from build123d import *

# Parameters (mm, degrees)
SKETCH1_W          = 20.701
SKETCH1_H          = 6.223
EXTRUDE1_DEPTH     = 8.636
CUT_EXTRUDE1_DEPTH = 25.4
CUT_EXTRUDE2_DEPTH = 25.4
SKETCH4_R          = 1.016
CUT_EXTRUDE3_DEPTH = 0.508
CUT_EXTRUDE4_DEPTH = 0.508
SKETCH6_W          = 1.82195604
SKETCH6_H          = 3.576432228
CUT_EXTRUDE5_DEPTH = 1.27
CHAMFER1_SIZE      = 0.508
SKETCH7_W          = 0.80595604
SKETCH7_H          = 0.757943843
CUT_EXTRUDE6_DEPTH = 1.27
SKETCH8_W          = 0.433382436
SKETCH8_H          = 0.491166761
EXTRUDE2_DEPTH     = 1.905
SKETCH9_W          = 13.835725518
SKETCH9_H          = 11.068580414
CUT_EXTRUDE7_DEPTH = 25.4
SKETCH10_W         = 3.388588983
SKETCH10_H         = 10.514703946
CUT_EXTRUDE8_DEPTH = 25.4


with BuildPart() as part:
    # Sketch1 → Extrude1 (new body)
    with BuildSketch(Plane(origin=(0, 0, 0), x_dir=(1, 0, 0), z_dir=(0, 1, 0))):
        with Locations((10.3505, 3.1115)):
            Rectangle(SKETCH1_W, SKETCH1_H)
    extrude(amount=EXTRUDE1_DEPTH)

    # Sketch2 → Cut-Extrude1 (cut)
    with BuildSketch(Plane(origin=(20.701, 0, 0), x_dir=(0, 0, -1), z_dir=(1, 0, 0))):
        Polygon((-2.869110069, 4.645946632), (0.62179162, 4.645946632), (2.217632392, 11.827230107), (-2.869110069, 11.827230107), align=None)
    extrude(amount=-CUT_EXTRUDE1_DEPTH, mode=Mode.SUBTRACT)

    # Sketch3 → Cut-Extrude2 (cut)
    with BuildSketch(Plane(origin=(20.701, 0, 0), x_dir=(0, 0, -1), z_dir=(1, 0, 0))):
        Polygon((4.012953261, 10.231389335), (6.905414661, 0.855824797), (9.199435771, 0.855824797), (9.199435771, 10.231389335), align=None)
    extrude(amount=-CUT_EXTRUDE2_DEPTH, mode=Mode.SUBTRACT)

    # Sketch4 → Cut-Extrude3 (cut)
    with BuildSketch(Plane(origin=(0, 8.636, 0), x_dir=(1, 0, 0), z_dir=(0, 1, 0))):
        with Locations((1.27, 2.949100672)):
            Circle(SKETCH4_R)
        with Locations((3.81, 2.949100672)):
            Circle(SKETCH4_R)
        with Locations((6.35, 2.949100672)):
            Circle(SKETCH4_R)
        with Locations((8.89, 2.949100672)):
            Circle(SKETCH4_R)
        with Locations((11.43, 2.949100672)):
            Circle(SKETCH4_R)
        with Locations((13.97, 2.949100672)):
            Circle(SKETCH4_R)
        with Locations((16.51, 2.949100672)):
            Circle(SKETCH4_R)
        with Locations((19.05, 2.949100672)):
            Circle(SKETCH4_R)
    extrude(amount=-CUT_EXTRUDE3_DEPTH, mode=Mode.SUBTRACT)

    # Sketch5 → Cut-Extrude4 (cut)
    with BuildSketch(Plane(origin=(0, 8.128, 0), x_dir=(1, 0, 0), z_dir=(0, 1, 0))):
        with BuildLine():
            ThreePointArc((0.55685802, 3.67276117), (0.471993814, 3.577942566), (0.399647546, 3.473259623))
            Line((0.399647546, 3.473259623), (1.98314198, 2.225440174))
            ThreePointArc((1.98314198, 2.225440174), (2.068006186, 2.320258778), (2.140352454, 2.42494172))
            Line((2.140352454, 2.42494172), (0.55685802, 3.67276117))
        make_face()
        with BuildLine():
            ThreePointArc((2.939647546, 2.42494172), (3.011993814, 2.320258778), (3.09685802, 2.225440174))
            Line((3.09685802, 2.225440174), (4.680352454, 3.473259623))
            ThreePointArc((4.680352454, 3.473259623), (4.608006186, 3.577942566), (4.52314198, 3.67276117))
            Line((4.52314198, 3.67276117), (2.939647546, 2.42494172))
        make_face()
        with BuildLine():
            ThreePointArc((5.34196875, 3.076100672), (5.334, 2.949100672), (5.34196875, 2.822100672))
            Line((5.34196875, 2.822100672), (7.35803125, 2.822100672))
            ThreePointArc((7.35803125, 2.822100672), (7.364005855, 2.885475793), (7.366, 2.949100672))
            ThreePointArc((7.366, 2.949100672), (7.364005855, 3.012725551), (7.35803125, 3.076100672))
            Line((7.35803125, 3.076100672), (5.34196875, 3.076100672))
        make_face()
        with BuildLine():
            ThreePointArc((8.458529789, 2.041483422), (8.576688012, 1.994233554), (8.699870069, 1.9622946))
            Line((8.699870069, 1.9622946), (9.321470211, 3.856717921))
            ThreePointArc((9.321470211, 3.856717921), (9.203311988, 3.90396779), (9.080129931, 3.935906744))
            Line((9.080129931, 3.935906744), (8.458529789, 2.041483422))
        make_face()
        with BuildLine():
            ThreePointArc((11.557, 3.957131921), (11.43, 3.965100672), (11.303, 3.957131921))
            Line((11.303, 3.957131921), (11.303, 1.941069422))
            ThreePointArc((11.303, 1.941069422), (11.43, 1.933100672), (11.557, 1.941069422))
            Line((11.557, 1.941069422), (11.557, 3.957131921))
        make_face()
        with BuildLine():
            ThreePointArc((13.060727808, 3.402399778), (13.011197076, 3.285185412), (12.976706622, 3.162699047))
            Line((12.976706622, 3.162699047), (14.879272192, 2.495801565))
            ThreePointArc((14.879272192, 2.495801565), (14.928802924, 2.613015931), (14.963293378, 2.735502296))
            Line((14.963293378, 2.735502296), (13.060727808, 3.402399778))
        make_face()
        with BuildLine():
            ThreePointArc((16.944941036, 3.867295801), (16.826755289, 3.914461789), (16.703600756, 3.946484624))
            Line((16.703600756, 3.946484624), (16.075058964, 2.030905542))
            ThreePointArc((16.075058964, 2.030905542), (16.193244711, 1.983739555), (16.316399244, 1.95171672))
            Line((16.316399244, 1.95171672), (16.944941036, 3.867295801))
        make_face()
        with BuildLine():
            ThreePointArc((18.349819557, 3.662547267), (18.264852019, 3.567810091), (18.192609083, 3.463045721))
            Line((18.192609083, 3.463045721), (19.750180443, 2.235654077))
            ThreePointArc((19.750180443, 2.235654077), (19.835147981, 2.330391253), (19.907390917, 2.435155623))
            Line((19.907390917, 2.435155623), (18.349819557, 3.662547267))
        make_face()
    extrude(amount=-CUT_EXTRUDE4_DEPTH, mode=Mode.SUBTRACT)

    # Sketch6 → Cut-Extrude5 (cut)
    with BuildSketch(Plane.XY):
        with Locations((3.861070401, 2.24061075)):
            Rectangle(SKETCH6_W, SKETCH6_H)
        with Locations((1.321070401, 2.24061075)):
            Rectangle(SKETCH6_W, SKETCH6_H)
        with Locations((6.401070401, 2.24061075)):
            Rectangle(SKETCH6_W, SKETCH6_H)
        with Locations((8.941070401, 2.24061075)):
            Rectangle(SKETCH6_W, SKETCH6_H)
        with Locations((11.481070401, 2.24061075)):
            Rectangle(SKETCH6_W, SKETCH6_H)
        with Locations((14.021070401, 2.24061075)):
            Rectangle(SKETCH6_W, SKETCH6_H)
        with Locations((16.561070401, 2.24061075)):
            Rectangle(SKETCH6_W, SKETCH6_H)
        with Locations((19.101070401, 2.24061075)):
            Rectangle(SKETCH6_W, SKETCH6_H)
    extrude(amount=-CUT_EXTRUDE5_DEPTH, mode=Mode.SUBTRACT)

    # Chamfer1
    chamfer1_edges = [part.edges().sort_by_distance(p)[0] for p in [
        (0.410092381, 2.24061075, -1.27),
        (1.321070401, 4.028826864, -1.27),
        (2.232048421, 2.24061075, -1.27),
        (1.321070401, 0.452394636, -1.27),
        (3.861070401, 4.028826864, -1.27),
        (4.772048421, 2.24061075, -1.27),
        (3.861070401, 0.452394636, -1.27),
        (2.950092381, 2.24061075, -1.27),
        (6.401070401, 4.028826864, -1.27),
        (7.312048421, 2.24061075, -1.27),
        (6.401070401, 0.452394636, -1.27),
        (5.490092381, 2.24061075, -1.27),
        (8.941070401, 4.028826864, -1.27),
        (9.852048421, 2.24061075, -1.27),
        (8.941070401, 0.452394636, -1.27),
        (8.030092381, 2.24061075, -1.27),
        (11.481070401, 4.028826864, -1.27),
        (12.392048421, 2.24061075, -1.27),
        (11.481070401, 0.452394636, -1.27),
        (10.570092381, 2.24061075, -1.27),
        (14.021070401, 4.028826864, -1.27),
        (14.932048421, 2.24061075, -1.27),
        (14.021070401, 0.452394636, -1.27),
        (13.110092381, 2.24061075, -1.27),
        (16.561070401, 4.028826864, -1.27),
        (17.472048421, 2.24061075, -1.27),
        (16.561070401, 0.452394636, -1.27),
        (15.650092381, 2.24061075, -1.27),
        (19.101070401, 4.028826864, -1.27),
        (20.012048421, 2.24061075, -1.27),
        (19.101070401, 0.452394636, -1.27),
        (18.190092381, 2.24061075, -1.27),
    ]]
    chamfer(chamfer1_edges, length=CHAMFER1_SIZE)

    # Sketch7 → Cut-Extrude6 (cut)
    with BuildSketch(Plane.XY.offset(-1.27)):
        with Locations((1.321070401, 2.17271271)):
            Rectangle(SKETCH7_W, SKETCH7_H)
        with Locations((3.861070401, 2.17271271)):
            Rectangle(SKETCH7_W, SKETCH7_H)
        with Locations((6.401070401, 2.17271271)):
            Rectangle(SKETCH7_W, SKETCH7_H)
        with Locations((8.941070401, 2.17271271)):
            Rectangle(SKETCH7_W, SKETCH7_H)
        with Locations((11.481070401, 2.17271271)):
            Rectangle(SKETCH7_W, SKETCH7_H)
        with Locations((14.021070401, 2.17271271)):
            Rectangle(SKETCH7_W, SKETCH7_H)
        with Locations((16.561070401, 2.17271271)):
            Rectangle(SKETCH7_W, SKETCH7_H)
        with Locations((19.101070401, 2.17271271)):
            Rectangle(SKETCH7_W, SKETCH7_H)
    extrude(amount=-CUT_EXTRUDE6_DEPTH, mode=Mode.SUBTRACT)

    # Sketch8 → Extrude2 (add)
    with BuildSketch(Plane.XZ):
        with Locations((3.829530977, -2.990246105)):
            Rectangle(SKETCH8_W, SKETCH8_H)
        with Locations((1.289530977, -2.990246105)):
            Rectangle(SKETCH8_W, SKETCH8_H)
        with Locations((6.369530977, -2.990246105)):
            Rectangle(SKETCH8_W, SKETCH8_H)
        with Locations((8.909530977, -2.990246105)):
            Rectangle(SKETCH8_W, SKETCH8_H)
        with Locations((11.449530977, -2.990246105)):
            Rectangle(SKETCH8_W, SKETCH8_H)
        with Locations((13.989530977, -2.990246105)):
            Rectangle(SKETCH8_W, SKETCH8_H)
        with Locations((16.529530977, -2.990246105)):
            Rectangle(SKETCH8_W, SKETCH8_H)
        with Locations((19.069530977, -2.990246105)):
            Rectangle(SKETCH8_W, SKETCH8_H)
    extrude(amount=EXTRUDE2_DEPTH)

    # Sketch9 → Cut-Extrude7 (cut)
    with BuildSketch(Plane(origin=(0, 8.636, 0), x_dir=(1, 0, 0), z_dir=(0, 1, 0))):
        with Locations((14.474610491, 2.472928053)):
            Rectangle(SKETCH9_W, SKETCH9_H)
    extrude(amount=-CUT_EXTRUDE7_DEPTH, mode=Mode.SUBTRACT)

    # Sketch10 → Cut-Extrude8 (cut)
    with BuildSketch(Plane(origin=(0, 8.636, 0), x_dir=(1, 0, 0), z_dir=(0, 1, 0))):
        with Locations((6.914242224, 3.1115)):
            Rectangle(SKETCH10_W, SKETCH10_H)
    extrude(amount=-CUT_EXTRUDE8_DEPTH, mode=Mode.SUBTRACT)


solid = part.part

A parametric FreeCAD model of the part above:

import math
import FreeCAD as App
import Part
import Sketcher
Q = App.Units.Quantity


def edges_at(feature, points):
    """Names of the edges that pass closest to the given points."""
    edges = feature.Shape.Edges
    near = lambda p: min(range(len(edges)), key=lambda i: edges[i].distToShape(Part.Vertex(*p))[0])
    return sorted({f"Edge{near(p) + 1}" for p in points})


def add_polygon(sketch, points):
    """Adds a closed chain of lines whose ends are joined by coincident constraints."""
    first, n = sketch.GeometryCount, len(points)
    for a, b in zip(points, points[1:] + points[:1]):
        sketch.addGeometry(Part.LineSegment(App.Vector(*a, 0), App.Vector(*b, 0)), False)
    for i in range(n):
        sketch.addConstraint(Sketcher.Constraint("Coincident", first + i, 2, first + (i + 1) % n, 1))

doc = App.newDocument("Part")
body = doc.addObject("PartDesign::Body", "Body")

sketch1 = doc.addObject("Sketcher::SketchObject", "Sketch")
body.addObject(sketch1)
sketch1.AttachmentSupport = (doc.XZ_Plane, [""])
sketch1.MapMode = "FlatFace"
add_polygon(sketch1, [(0, -6), (0, 0), (21, 0), (21, -6)])
sketch1.addConstraint([
    Sketcher.Constraint("Vertical", 0),
    Sketcher.Constraint("Horizontal", 1),
    Sketcher.Constraint("Vertical", 2),
    Sketcher.Constraint("Horizontal", 3),
    Sketcher.Constraint("Coincident", 0, 2, -1, 1),
    Sketcher.Constraint("DistanceX", 1, 1, 1, 2, Q("0.815 in")),
    Sketcher.Constraint("DistanceY", 0, 1, 0, 2, Q("0.245 in")),
])
pad1 = doc.addObject("PartDesign::Pad", "Pad")
body.addObject(pad1)
pad1.Profile = sketch1
pad1.Length = Q("0.34 in")
pad1.Reversed = True

sketch2 = doc.addObject("Sketcher::SketchObject", "Sketch001")
body.addObject(sketch2)
sketch2.AttachmentSupport = (doc.YZ_Plane, [""])
sketch2.MapMode = "FlatFace"
sketch2.AttachmentOffset = App.Placement(App.Vector(0, 0, 0.815 * 25.4), App.Rotation())
add_polygon(sketch2, [(4.6, 2.9), (4.6, -0.6), (11.8, -2.2), (11.8, 2.9)])
sketch2.addConstraint([
    Sketcher.Constraint("Vertical", 0),
    Sketcher.Constraint("Vertical", 2),
    Sketcher.Constraint("Horizontal", 3),
    Sketcher.Constraint("DistanceY", 0, 2, 0, 1, 3.490902),
    Sketcher.Constraint("DistanceX", 3, 2, 3, 1, 7.181283),
    Sketcher.Constraint("DistanceY", 2, 1, 2, 2, 5.086742),
    Sketcher.Constraint("DistanceY", 0, 2, -1, 1, 0.621792),
    Sketcher.Constraint("DistanceX", -1, 1, 1, 2, 11.82723),
])
pocket1 = doc.addObject("PartDesign::Pocket", "Pocket")
body.addObject(pocket1)
pocket1.Profile = sketch2
pocket1.Length = Q("1 in")

sketch3 = doc.addObject("Sketcher::SketchObject", "Sketch002")
body.addObject(sketch3)
sketch3.AttachmentSupport = (doc.YZ_Plane, [""])
sketch3.MapMode = "FlatFace"
sketch3.AttachmentOffset = App.Placement(App.Vector(0, 0, 0.815 * 25.4), App.Rotation())
add_polygon(sketch3, [(10.2, -4), (0.9, -6.9), (0.9, -9.2), (10.2, -9.2)])
sketch3.addConstraint([
    Sketcher.Constraint("Vertical", 1),
    Sketcher.Constraint("Horizontal", 2),
    Sketcher.Constraint("Vertical", 3),
    Sketcher.Constraint("DistanceY", 1, 2, 1, 1, 2.294021),
    Sketcher.Constraint("DistanceX", 2, 1, 2, 2, 9.375565),
    Sketcher.Constraint("DistanceY", 3, 1, 3, 2, 5.186483),
    Sketcher.Constraint("DistanceX", -1, 1, 2, 2, 10.231389),
    Sketcher.Constraint("DistanceY", 0, 2, -1, 1, 6.905415),
])
pocket2 = doc.addObject("PartDesign::Pocket", "Pocket001")
body.addObject(pocket2)
pocket2.Profile = sketch3
pocket2.Length = Q("1 in")

sketch4 = doc.addObject("Sketcher::SketchObject", "Sketch003")
body.addObject(sketch4)
sketch4.AttachmentSupport = (doc.XZ_Plane, [""])
sketch4.MapMode = "FlatFace"
sketch4.AttachmentOffset = App.Placement(App.Vector(0, 0, -0.34 * 25.4), App.Rotation())
sketch4.addGeometry([
    Part.Circle(App.Vector(1.3, -2.9, 0), App.Vector(0, 0, 1), 1),
    Part.Circle(App.Vector(3.8, -2.9, 0), App.Vector(0, 0, 1), 1),
    Part.Circle(App.Vector(6.3, -2.9, 0), App.Vector(0, 0, 1), 1),
    Part.Circle(App.Vector(8.9, -2.9, 0), App.Vector(0, 0, 1), 1),
    Part.Circle(App.Vector(11.4, -2.9, 0), App.Vector(0, 0, 1), 1),
    Part.Circle(App.Vector(14, -2.9, 0), App.Vector(0, 0, 1), 1),
    Part.Circle(App.Vector(16.5, -2.9, 0), App.Vector(0, 0, 1), 1),
    Part.Circle(App.Vector(19.1, -2.9, 0), App.Vector(0, 0, 1), 1),
], False)
sketch4.addConstraint([
    Sketcher.Constraint("Equal", 0, 1),
    Sketcher.Constraint("Equal", 1, 2),
    Sketcher.Constraint("Equal", 2, 3),
    Sketcher.Constraint("Equal", 3, 4),
    Sketcher.Constraint("Equal", 4, 5),
    Sketcher.Constraint("Equal", 5, 6),
    Sketcher.Constraint("Equal", 6, 7),
    Sketcher.Constraint("Horizontal", 0, 3, 1, 3),
    Sketcher.Constraint("Horizontal", 1, 3, 2, 3),
    Sketcher.Constraint("Horizontal", 2, 3, 3, 3),
    Sketcher.Constraint("Horizontal", 3, 3, 4, 3),
    Sketcher.Constraint("Horizontal", 4, 3, 5, 3),
    Sketcher.Constraint("Horizontal", 5, 3, 6, 3),
    Sketcher.Constraint("Horizontal", 6, 3, 7, 3),
    Sketcher.Constraint("Diameter", 0, Q("0.08 in")),
    Sketcher.Constraint("DistanceX", 0, 3, 1, 3, Q("0.1 in")),
    Sketcher.Constraint("DistanceX", 1, 3, 2, 3, Q("0.1 in")),
    Sketcher.Constraint("DistanceX", 2, 3, 3, 3, Q("0.1 in")),
    Sketcher.Constraint("DistanceX", 3, 3, 4, 3, Q("0.1 in")),
    Sketcher.Constraint("DistanceX", 4, 3, 5, 3, Q("0.1 in")),
    Sketcher.Constraint("DistanceX", 5, 3, 6, 3, Q("0.1 in")),
    Sketcher.Constraint("DistanceX", 6, 3, 7, 3, Q("0.1 in")),
    Sketcher.Constraint("DistanceX", -1, 1, 0, 3, Q("0.05 in")),
    Sketcher.Constraint("DistanceY", 0, 3, -1, 1, 2.949101),
])
pocket3 = doc.addObject("PartDesign::Pocket", "Pocket002")
body.addObject(pocket3)
pocket3.Profile = sketch4
pocket3.Length = Q("0.02 in")
pocket3.Reversed = True

sketch5 = doc.addObject("Sketcher::SketchObject", "Sketch004")
body.addObject(sketch5)
sketch5.AttachmentSupport = (doc.XZ_Plane, [""])
sketch5.MapMode = "FlatFace"
sketch5.AttachmentOffset = App.Placement(App.Vector(0, 0, -0.32 * 25.4), App.Rotation())
sketch5.addGeometry([
    Part.ArcOfCircle(Part.Circle(App.Vector(1.27, -2.95, 0), App.Vector(0, 0, 1), 1.02), math.radians(-148.94), math.radians(-134.58)),
    Part.LineSegment(App.Vector(0.4, -3.47, 0), App.Vector(1.98, -2.23, 0)),
    Part.ArcOfCircle(Part.Circle(App.Vector(1.27, -2.95, 0), App.Vector(0, 0, 1), 1.02), math.radians(31.06), math.radians(45.42)),
    Part.LineSegment(App.Vector(2.14, -2.42, 0), App.Vector(0.56, -3.67, 0)),
    Part.ArcOfCircle(Part.Circle(App.Vector(3.81, -2.95, 0), App.Vector(0, 0, 1), 1.02), math.radians(134.58), math.radians(148.94)),
    Part.LineSegment(App.Vector(3.1, -2.23, 0), App.Vector(4.68, -3.47, 0)),
    Part.ArcOfCircle(Part.Circle(App.Vector(3.81, -2.95, 0), App.Vector(0, 0, 1), 1.02), math.radians(-45.42), math.radians(-31.06)),
    Part.LineSegment(App.Vector(4.52, -3.67, 0), App.Vector(2.94, -2.42, 0)),
    Part.ArcOfCircle(Part.Circle(App.Vector(6.35, -2.95, 0), App.Vector(0, 0, 1), 1.02), math.radians(172.82), math.radians(187.18)),
    Part.LineSegment(App.Vector(5.34, -2.82, 0), App.Vector(7.36, -2.82, 0)),
    Part.ArcOfCircle(Part.Circle(App.Vector(6.35, -2.95, 0), App.Vector(0, 0, 1), 1.02), math.radians(0), math.radians(7.18)),
    Part.ArcOfCircle(Part.Circle(App.Vector(6.35, -2.95, 0), App.Vector(0, 0, 1), 1.02), math.radians(-7.18), math.radians(0)),
    Part.LineSegment(App.Vector(7.36, -3.08, 0), App.Vector(5.34, -3.08, 0)),
    Part.ArcOfCircle(Part.Circle(App.Vector(8.89, -2.95, 0), App.Vector(0, 0, 1), 1), math.radians(100.91), math.radians(115.43)),
    Part.LineSegment(App.Vector(8.7, -1.96, 0), App.Vector(9.32, -3.86, 0)),
    Part.ArcOfCircle(Part.Circle(App.Vector(8.89, -2.95, 0), App.Vector(0, 0, 1), 1), math.radians(-79.09), math.radians(-64.57)),
    Part.LineSegment(App.Vector(9.08, -3.94, 0), App.Vector(8.46, -2.04, 0)),
    Part.ArcOfCircle(Part.Circle(App.Vector(11.43, -2.95, 0), App.Vector(0, 0, 1), 1.02), math.radians(-97.18), math.radians(-82.82)),
    Part.LineSegment(App.Vector(11.3, -3.96, 0), App.Vector(11.3, -1.94, 0)),
    Part.ArcOfCircle(Part.Circle(App.Vector(11.43, -2.95, 0), App.Vector(0, 0, 1), 1.02), math.radians(82.82), math.radians(97.18)),
    Part.LineSegment(App.Vector(11.56, -1.94, 0), App.Vector(11.56, -3.96, 0)),
    Part.ArcOfCircle(Part.Circle(App.Vector(13.97, -2.95, 0), App.Vector(0, 0, 1), 1.02), math.radians(-167.86), math.radians(-153.5)),
    Part.LineSegment(App.Vector(12.98, -3.16, 0), App.Vector(14.88, -2.5, 0)),
    Part.ArcOfCircle(Part.Circle(App.Vector(13.97, -2.95, 0), App.Vector(0, 0, 1), 1.02), math.radians(12.14), math.radians(26.5)),
    Part.LineSegment(App.Vector(14.96, -2.74, 0), App.Vector(13.06, -3.4, 0)),
    Part.ArcOfCircle(Part.Circle(App.Vector(16.51, -2.95, 0), App.Vector(0, 0, 1), 1.02), math.radians(-79.02), math.radians(-64.65)),
    Part.LineSegment(App.Vector(16.7, -3.95, 0), App.Vector(16.08, -2.03, 0)),
    Part.ArcOfCircle(Part.Circle(App.Vector(16.51, -2.95, 0), App.Vector(0, 0, 1), 1.02), math.radians(100.98), math.radians(115.35)),
    Part.LineSegment(App.Vector(16.32, -1.95, 0), App.Vector(16.94, -3.87, 0)),
    Part.ArcOfCircle(Part.Circle(App.Vector(19.05, -2.95, 0), App.Vector(0, 0, 1), 1), math.radians(-149.06), math.radians(-134.46)),
    Part.LineSegment(App.Vector(18.19, -3.46, 0), App.Vector(19.75, -2.24, 0)),
    Part.ArcOfCircle(Part.Circle(App.Vector(19.05, -2.95, 0), App.Vector(0, 0, 1), 1), math.radians(30.94), math.radians(45.54)),
    Part.LineSegment(App.Vector(19.91, -2.44, 0), App.Vector(18.35, -3.66, 0)),
], False)
sketch5.addConstraint([
    Sketcher.Constraint("Coincident", 0, 1, 1, 1),
    Sketcher.Constraint("Coincident", 1, 2, 2, 2),
    Sketcher.Constraint("Coincident", 2, 1, 3, 1),
    Sketcher.Constraint("Coincident", 3, 2, 0, 2),
    Sketcher.Constraint("Coincident", 4, 1, 5, 1),
    Sketcher.Constraint("Coincident", 5, 2, 6, 2),
    Sketcher.Constraint("Coincident", 6, 1, 7, 1),
    Sketcher.Constraint("Coincident", 7, 2, 4, 2),
    Sketcher.Constraint("Coincident", 8, 1, 9, 1),
    Sketcher.Constraint("Coincident", 9, 2, 10, 2),
    Sketcher.Constraint("Tangent", 10, 1, 11, 2),
    Sketcher.Constraint("Coincident", 11, 1, 12, 1),
    Sketcher.Constraint("Coincident", 12, 2, 8, 2),
    Sketcher.Constraint("Coincident", 13, 1, 14, 1),
    Sketcher.Constraint("Coincident", 14, 2, 15, 2),
    Sketcher.Constraint("Coincident", 15, 1, 16, 1),
    Sketcher.Constraint("Coincident", 16, 2, 13, 2),
    Sketcher.Constraint("Coincident", 17, 1, 18, 1),
    Sketcher.Constraint("Coincident", 18, 2, 19, 2),
    Sketcher.Constraint("Coincident", 19, 1, 20, 1),
    Sketcher.Constraint("Coincident", 20, 2, 17, 2),
    Sketcher.Constraint("Coincident", 21, 1, 22, 1),
    Sketcher.Constraint("Coincident", 22, 2, 23, 2),
    Sketcher.Constraint("Coincident", 23, 1, 24, 1),
    Sketcher.Constraint("Coincident", 24, 2, 21, 2),
    Sketcher.Constraint("Coincident", 25, 1, 26, 1),
    Sketcher.Constraint("Coincident", 26, 2, 27, 2),
    Sketcher.Constraint("Coincident", 27, 1, 28, 1),
    Sketcher.Constraint("Coincident", 28, 2, 25, 2),
    Sketcher.Constraint("Coincident", 29, 1, 30, 1),
    Sketcher.Constraint("Coincident", 30, 2, 31, 2),
    Sketcher.Constraint("Coincident", 31, 1, 32, 1),
    Sketcher.Constraint("Coincident", 32, 2, 29, 2),
    Sketcher.Constraint("Horizontal", 9),
    Sketcher.Constraint("Horizontal", 12),
    Sketcher.Constraint("Vertical", 18),
    Sketcher.Constraint("Vertical", 20),
    Sketcher.Constraint("Coincident", 2, 3, 0, 3),
    Sketcher.Constraint("Coincident", 6, 3, 4, 3),
    Sketcher.Constraint("Coincident", 10, 3, 8, 3),
    Sketcher.Constraint("Coincident", 15, 3, 13, 3),
    Sketcher.Constraint("Coincident", 19, 3, 17, 3),
    Sketcher.Constraint("Coincident", 23, 3, 21, 3),
    Sketcher.Constraint("Coincident", 27, 3, 25, 3),
    Sketcher.Constraint("Coincident", 31, 3, 29, 3),
    Sketcher.Constraint("Equal", 0, 2),
    Sketcher.Constraint("Equal", 2, 4),
    Sketcher.Constraint("Equal", 4, 6),
    Sketcher.Constraint("Equal", 6, 8),
    Sketcher.Constraint("Equal", 8, 10),
    Sketcher.Constraint("Equal", 10, 11),
    Sketcher.Constraint("Equal", 13, 15),
    Sketcher.Constraint("Equal", 11, 17),
    Sketcher.Constraint("Equal", 17, 19),
    Sketcher.Constraint("Equal", 19, 21),
    Sketcher.Constraint("Equal", 21, 23),
    Sketcher.Constraint("Equal", 23, 25),
    Sketcher.Constraint("Equal", 25, 27),
    Sketcher.Constraint("Equal", 29, 31),
    Sketcher.Constraint("Parallel", 1, 3),
    Sketcher.Constraint("Parallel", 5, 7),
    Sketcher.Constraint("Parallel", 14, 16),
    Sketcher.Constraint("Parallel", 22, 24),
    Sketcher.Constraint("Parallel", 16, 26),
    Sketcher.Constraint("Parallel", 26, 28),
    Sketcher.Constraint("Parallel", 3, 30),
    Sketcher.Constraint("Parallel", 30, 32),
    Sketcher.Constraint("Horizontal", 2, 3, 4, 3),
    Sketcher.Constraint("Horizontal", 6, 3, 8, 3),
    Sketcher.Constraint("Horizontal", 11, 3, 13, 3),
    Sketcher.Constraint("Horizontal", 15, 3, 17, 3),
    Sketcher.Constraint("Horizontal", 19, 3, 21, 3),
    Sketcher.Constraint("Horizontal", 23, 3, 25, 3),
    Sketcher.Constraint("Horizontal", 27, 3, 29, 3),
    Sketcher.Constraint("Horizontal", 1, 2, 4, 1),
    Sketcher.Constraint("Horizontal", 0, 1, 5, 2),
    Sketcher.Constraint("Horizontal", 3, 2, 6, 1),
    Sketcher.Constraint("Horizontal", 31, 3, 10, 1),
    Sketcher.Constraint("Horizontal", 18, 2, 19, 1),
    Sketcher.Constraint("Vertical", 9, 2, 11, 1),
    Sketcher.Constraint("Equal", 12, 18),
    Sketcher.Constraint("Equal", 1, 3),
    Sketcher.Constraint("Equal", 14, 16),
    Sketcher.Constraint("Equal", 7, 22),
    Sketcher.Constraint("Equal", 22, 24),
    Sketcher.Constraint("Equal", 24, 26),
    Sketcher.Constraint("Equal", 26, 28),
    Sketcher.Constraint("Equal", 30, 32),
    Sketcher.Constraint("Radius", 0, Q("0.04 in")),
    Sketcher.Constraint("DistanceX", 2, 3, 4, 3, Q("0.1 in")),
    Sketcher.Constraint("DistanceX", 6, 3, 8, 3, Q("0.1 in")),
    Sketcher.Constraint("DistanceX", 8, 3, 13, 3, Q("0.1 in")),
    Sketcher.Constraint("DistanceX", 15, 3, 17, 3, Q("0.1 in")),
    Sketcher.Constraint("DistanceX", 17, 3, 21, 3, Q("0.1 in")),
    Sketcher.Constraint("DistanceX", 21, 3, 25, 3, Q("0.1 in")),
    Sketcher.Constraint("DistanceX", 27, 3, 29, 3, Q("0.1 in")),
    Sketcher.Constraint("DistanceX", -1, 1, 0, 3, Q("0.05 in")),
    Sketcher.Constraint("DistanceY", 11, 1, 9, 2, Q("0.01 in")),
    Sketcher.Constraint("Radius", 29, 0.999629),
    Sketcher.Constraint("Radius", 13, 1.004956),
    Sketcher.Constraint("DistanceY", 0, 3, -1, 1, 2.949101),
    Sketcher.Constraint("DistanceY", 21, 1, -1, 1, 3.162699),
    Sketcher.Constraint("DistanceY", 22, 2, -1, 1, 2.495802),
    Sketcher.Constraint("DistanceX", -1, 1, 25, 1, 16.703601),
    Sketcher.Constraint("DistanceY", 2, 1, 1, 2, 0.199502),
    Sketcher.Constraint("DistanceX", 13, 1, 14, 2, 0.6216),
    Sketcher.Constraint("DistanceY", 31, 1, 30, 2, 0.199502),
])
pocket4 = doc.addObject("PartDesign::Pocket", "Pocket003")
body.addObject(pocket4)
pocket4.Profile = sketch5
pocket4.Length = Q("0.02 in")
pocket4.Reversed = True

sketch6 = doc.addObject("Sketcher::SketchObject", "Sketch005")
body.addObject(sketch6)
sketch6.AttachmentSupport = (doc.XY_Plane, [""])
sketch6.MapMode = "FlatFace"
add_polygon(sketch6, [(3, 4), (3, 0.5), (4.8, 0.5), (4.8, 4)])
add_polygon(sketch6, [(0.4, 4), (0.4, 0.5), (2.2, 0.5), (2.2, 4)])
add_polygon(sketch6, [(5.5, 4), (5.5, 0.5), (7.3, 0.5), (7.3, 4)])
add_polygon(sketch6, [(8, 4), (8, 0.5), (9.9, 0.5), (9.9, 4)])
add_polygon(sketch6, [(10.6, 4), (10.6, 0.5), (12.4, 0.5), (12.4, 4)])
add_polygon(sketch6, [(13.1, 4), (13.1, 0.5), (14.9, 0.5), (14.9, 4)])
add_polygon(sketch6, [(15.7, 4), (15.7, 0.5), (17.5, 0.5), (17.5, 4)])
add_polygon(sketch6, [(18.2, 4), (18.2, 0.5), (20, 0.5), (20, 4)])
sketch6.addConstraint([
    Sketcher.Constraint("Vertical", 0),
    Sketcher.Constraint("Horizontal", 1),
    Sketcher.Constraint("Vertical", 2),
    Sketcher.Constraint("Horizontal", 3),
    Sketcher.Constraint("Vertical", 4),
    Sketcher.Constraint("Horizontal", 5),
    Sketcher.Constraint("Vertical", 6),
    Sketcher.Constraint("Horizontal", 7),
    Sketcher.Constraint("Vertical", 8),
    Sketcher.Constraint("Horizontal", 9),
    Sketcher.Constraint("Vertical", 10),
    Sketcher.Constraint("Horizontal", 11),
    Sketcher.Constraint("Vertical", 12),
    Sketcher.Constraint("Horizontal", 13),
    Sketcher.Constraint("Vertical", 14),
    Sketcher.Constraint("Horizontal", 15),
    Sketcher.Constraint("Vertical", 16),
    Sketcher.Constraint("Horizontal", 17),
    Sketcher.Constraint("Vertical", 18),
    Sketcher.Constraint("Horizontal", 19),
    Sketcher.Constraint("Vertical", 20),
    Sketcher.Constraint("Horizontal", 21),
    Sketcher.Constraint("Vertical", 22),
    Sketcher.Constraint("Horizontal", 23),
    Sketcher.Constraint("Vertical", 24),
    Sketcher.Constraint("Horizontal", 25),
    Sketcher.Constraint("Vertical", 26),
    Sketcher.Constraint("Horizontal", 27),
    Sketcher.Constraint("Vertical", 28),
    Sketcher.Constraint("Horizontal", 29),
    Sketcher.Constraint("Vertical", 30),
    Sketcher.Constraint("Horizontal", 31),
    Sketcher.Constraint("Horizontal", 1, 2, 4, 2),
    Sketcher.Constraint("Horizontal", 3, 2, 6, 2),
    Sketcher.Constraint("Horizontal", 5, 2, 8, 2),
    Sketcher.Constraint("Horizontal", 7, 2, 10, 2),
    Sketcher.Constraint("Horizontal", 9, 2, 12, 2),
    Sketcher.Constraint("Horizontal", 11, 2, 14, 2),
    Sketcher.Constraint("Horizontal", 13, 2, 16, 2),
    Sketcher.Constraint("Horizontal", 15, 2, 18, 2),
    Sketcher.Constraint("Horizontal", 17, 2, 20, 2),
    Sketcher.Constraint("Horizontal", 19, 2, 22, 2),
    Sketcher.Constraint("Horizontal", 21, 2, 24, 2),
    Sketcher.Constraint("Horizontal", 23, 2, 26, 2),
    Sketcher.Constraint("Horizontal", 25, 2, 28, 2),
    Sketcher.Constraint("Horizontal", 27, 2, 30, 2),
    Sketcher.Constraint("Equal", 3, 5),
    Sketcher.Constraint("Equal", 7, 9),
    Sketcher.Constraint("Equal", 11, 13),
    Sketcher.Constraint("Equal", 15, 17),
    Sketcher.Constraint("Equal", 19, 21),
    Sketcher.Constraint("Equal", 23, 25),
    Sketcher.Constraint("Equal", 27, 29),
    Sketcher.Constraint("DistanceX", 4, 2, 0, 2, Q("0.1 in")),
    Sketcher.Constraint("DistanceX", 0, 2, 8, 2, Q("0.1 in")),
    Sketcher.Constraint("DistanceX", 8, 2, 12, 2, Q("0.1 in")),
    Sketcher.Constraint("DistanceX", 12, 2, 16, 2, Q("0.1 in")),
    Sketcher.Constraint("DistanceX", 16, 2, 20, 2, Q("0.1 in")),
    Sketcher.Constraint("DistanceX", 20, 2, 24, 2, Q("0.1 in")),
    Sketcher.Constraint("DistanceX", 24, 2, 28, 2, Q("0.1 in")),
    Sketcher.Constraint("DistanceX", 1, 1, 1, 2, 1.821956),
    Sketcher.Constraint("DistanceY", 0, 2, 0, 1, 3.576432),
    Sketcher.Constraint("DistanceX", -1, 1, 1, 2, 4.772048),
    Sketcher.Constraint("DistanceY", -1, 1, 0, 2, 0.452395),
])
pocket5 = doc.addObject("PartDesign::Pocket", "Pocket004")
body.addObject(pocket5)
pocket5.Profile = sketch6
pocket5.Length = Q("0.05 in")
doc.recompute()

chamfer = doc.addObject("PartDesign::Chamfer", "Chamfer")
body.addObject(chamfer)
chamfer.Base = (pocket5, edges_at(pocket5, [
    (0.41, 2.241, -1.27),
    (1.321, 4.029, -1.27),
    (2.232, 2.241, -1.27),
    (1.321, 0.452, -1.27),
    (3.861, 4.029, -1.27),
    (4.772, 2.241, -1.27),
    (3.861, 0.452, -1.27),
    (2.95, 2.241, -1.27),
    (6.401, 4.029, -1.27),
    (7.312, 2.241, -1.27),
    (6.401, 0.452, -1.27),
    (5.49, 2.241, -1.27),
    (8.941, 4.029, -1.27),
    (9.852, 2.241, -1.27),
    (8.941, 0.452, -1.27),
    (8.03, 2.241, -1.27),
    (11.481, 4.029, -1.27),
    (12.392, 2.241, -1.27),
    (11.481, 0.452, -1.27),
    (10.57, 2.241, -1.27),
    (14.021, 4.029, -1.27),
    (14.932, 2.241, -1.27),
    (14.021, 0.452, -1.27),
    (13.11, 2.241, -1.27),
    (16.561, 4.029, -1.27),
    (17.472, 2.241, -1.27),
    (16.561, 0.452, -1.27),
    (15.65, 2.241, -1.27),
    (19.101, 4.029, -1.27),
    (20.012, 2.241, -1.27),
    (19.101, 0.452, -1.27),
    (18.19, 2.241, -1.27),
]))
chamfer.Size = Q("0.02 in")

sketch7 = doc.addObject("Sketcher::SketchObject", "Sketch006")
body.addObject(sketch7)
sketch7.AttachmentSupport = (doc.XY_Plane, [""])
sketch7.MapMode = "FlatFace"
sketch7.AttachmentOffset = App.Placement(App.Vector(0, 0, -0.05 * 25.4), App.Rotation())
add_polygon(sketch7, [(0.9, 2.6), (0.9, 1.8), (1.7, 1.8), (1.7, 2.6)])
add_polygon(sketch7, [(3.5, 2.6), (3.5, 1.8), (4.3, 1.8), (4.3, 2.6)])
add_polygon(sketch7, [(6, 2.6), (6, 1.8), (6.8, 1.8), (6.8, 2.6)])
add_polygon(sketch7, [(8.5, 2.6), (8.5, 1.8), (9.3, 1.8), (9.3, 2.6)])
add_polygon(sketch7, [(11.1, 2.6), (11.1, 1.8), (11.9, 1.8), (11.9, 2.6)])
add_polygon(sketch7, [(13.6, 2.6), (13.6, 1.8), (14.4, 1.8), (14.4, 2.6)])
add_polygon(sketch7, [(16.2, 2.6), (16.2, 1.8), (17, 1.8), (17, 2.6)])
add_polygon(sketch7, [(18.7, 2.6), (18.7, 1.8), (19.5, 1.8), (19.5, 2.6)])
sketch7.addConstraint([
    Sketcher.Constraint("Vertical", 0),
    Sketcher.Constraint("Horizontal", 1),
    Sketcher.Constraint("Vertical", 2),
    Sketcher.Constraint("Horizontal", 3),
    Sketcher.Constraint("Vertical", 4),
    Sketcher.Constraint("Horizontal", 5),
    Sketcher.Constraint("Vertical", 6),
    Sketcher.Constraint("Horizontal", 7),
    Sketcher.Constraint("Vertical", 8),
    Sketcher.Constraint("Horizontal", 9),
    Sketcher.Constraint("Vertical", 10),
    Sketcher.Constraint("Horizontal", 11),
    Sketcher.Constraint("Vertical", 12),
    Sketcher.Constraint("Horizontal", 13),
    Sketcher.Constraint("Vertical", 14),
    Sketcher.Constraint("Horizontal", 15),
    Sketcher.Constraint("Vertical", 16),
    Sketcher.Constraint("Horizontal", 17),
    Sketcher.Constraint("Vertical", 18),
    Sketcher.Constraint("Horizontal", 19),
    Sketcher.Constraint("Vertical", 20),
    Sketcher.Constraint("Horizontal", 21),
    Sketcher.Constraint("Vertical", 22),
    Sketcher.Constraint("Horizontal", 23),
    Sketcher.Constraint("Vertical", 24),
    Sketcher.Constraint("Horizontal", 25),
    Sketcher.Constraint("Vertical", 26),
    Sketcher.Constraint("Horizontal", 27),
    Sketcher.Constraint("Vertical", 28),
    Sketcher.Constraint("Horizontal", 29),
    Sketcher.Constraint("Vertical", 30),
    Sketcher.Constraint("Horizontal", 31),
    Sketcher.Constraint("Horizontal", 1, 2, 4, 2),
    Sketcher.Constraint("Horizontal", 3, 2, 6, 2),
    Sketcher.Constraint("Horizontal", 5, 2, 8, 2),
    Sketcher.Constraint("Horizontal", 7, 2, 10, 2),
    Sketcher.Constraint("Horizontal", 9, 2, 12, 2),
    Sketcher.Constraint("Horizontal", 11, 2, 14, 2),
    Sketcher.Constraint("Horizontal", 13, 2, 16, 2),
    Sketcher.Constraint("Horizontal", 15, 2, 18, 2),
    Sketcher.Constraint("Horizontal", 17, 2, 20, 2),
    Sketcher.Constraint("Horizontal", 19, 2, 22, 2),
    Sketcher.Constraint("Horizontal", 21, 2, 24, 2),
    Sketcher.Constraint("Horizontal", 23, 2, 26, 2),
    Sketcher.Constraint("Horizontal", 25, 2, 28, 2),
    Sketcher.Constraint("Horizontal", 27, 2, 30, 2),
    Sketcher.Constraint("Equal", 3, 5),
    Sketcher.Constraint("Equal", 7, 9),
    Sketcher.Constraint("Equal", 11, 13),
    Sketcher.Constraint("Equal", 15, 17),
    Sketcher.Constraint("Equal", 19, 21),
    Sketcher.Constraint("Equal", 23, 25),
    Sketcher.Constraint("Equal", 27, 29),
    Sketcher.Constraint("DistanceX", 0, 2, 4, 2, Q("0.1 in")),
    Sketcher.Constraint("DistanceX", 4, 2, 8, 2, Q("0.1 in")),
    Sketcher.Constraint("DistanceX", 8, 2, 12, 2, Q("0.1 in")),
    Sketcher.Constraint("DistanceX", 12, 2, 16, 2, Q("0.1 in")),
    Sketcher.Constraint("DistanceX", 16, 2, 20, 2, Q("0.1 in")),
    Sketcher.Constraint("DistanceX", 20, 2, 24, 2, Q("0.1 in")),
    Sketcher.Constraint("DistanceX", 24, 2, 28, 2, Q("0.1 in")),
    Sketcher.Constraint("DistanceX", 1, 1, 1, 2, 0.805956),
    Sketcher.Constraint("DistanceY", 0, 2, 0, 1, 0.757944),
    Sketcher.Constraint("DistanceY", -1, 1, 0, 2, 1.793741),
    Sketcher.Constraint("DistanceX", -1, 1, 1, 2, 1.724048),
])
pocket6 = doc.addObject("PartDesign::Pocket", "Pocket005")
body.addObject(pocket6)
pocket6.Profile = sketch7
pocket6.Length = Q("0.05 in")

sketch8 = doc.addObject("Sketcher::SketchObject", "Sketch007")
body.addObject(sketch8)
sketch8.AttachmentSupport = (doc.XZ_Plane, [""])
sketch8.MapMode = "FlatFace"
add_polygon(sketch8, [(3.61, -2.74), (3.61, -3.24), (4.05, -3.24), (4.05, -2.74)])
add_polygon(sketch8, [(1.07, -2.74), (1.07, -3.24), (1.51, -3.24), (1.51, -2.74)])
add_polygon(sketch8, [(6.15, -2.74), (6.15, -3.24), (6.59, -3.24), (6.59, -2.74)])
add_polygon(sketch8, [(8.69, -2.74), (8.69, -3.24), (9.13, -3.24), (9.13, -2.74)])
add_polygon(sketch8, [(11.23, -2.74), (11.23, -3.24), (11.67, -3.24), (11.67, -2.74)])
add_polygon(sketch8, [(13.77, -2.74), (13.77, -3.24), (14.21, -3.24), (14.21, -2.74)])
add_polygon(sketch8, [(16.31, -2.74), (16.31, -3.24), (16.75, -3.24), (16.75, -2.74)])
add_polygon(sketch8, [(18.85, -2.74), (18.85, -3.24), (19.29, -3.24), (19.29, -2.74)])
sketch8.addConstraint([
    Sketcher.Constraint("Vertical", 0),
    Sketcher.Constraint("Horizontal", 1),
    Sketcher.Constraint("Vertical", 2),
    Sketcher.Constraint("Horizontal", 3),
    Sketcher.Constraint("Vertical", 4),
    Sketcher.Constraint("Horizontal", 5),
    Sketcher.Constraint("Vertical", 6),
    Sketcher.Constraint("Horizontal", 7),
    Sketcher.Constraint("Vertical", 8),
    Sketcher.Constraint("Horizontal", 9),
    Sketcher.Constraint("Vertical", 10),
    Sketcher.Constraint("Horizontal", 11),
    Sketcher.Constraint("Vertical", 12),
    Sketcher.Constraint("Horizontal", 13),
    Sketcher.Constraint("Vertical", 14),
    Sketcher.Constraint("Horizontal", 15),
    Sketcher.Constraint("Vertical", 16),
    Sketcher.Constraint("Horizontal", 17),
    Sketcher.Constraint("Vertical", 18),
    Sketcher.Constraint("Horizontal", 19),
    Sketcher.Constraint("Vertical", 20),
    Sketcher.Constraint("Horizontal", 21),
    Sketcher.Constraint("Vertical", 22),
    Sketcher.Constraint("Horizontal", 23),
    Sketcher.Constraint("Vertical", 24),
    Sketcher.Constraint("Horizontal", 25),
    Sketcher.Constraint("Vertical", 26),
    Sketcher.Constraint("Horizontal", 27),
    Sketcher.Constraint("Vertical", 28),
    Sketcher.Constraint("Horizontal", 29),
    Sketcher.Constraint("Vertical", 30),
    Sketcher.Constraint("Horizontal", 31),
    Sketcher.Constraint("Horizontal", 1, 2, 4, 2),
    Sketcher.Constraint("Horizontal", 3, 2, 6, 2),
    Sketcher.Constraint("Horizontal", 5, 2, 8, 2),
    Sketcher.Constraint("Horizontal", 7, 2, 10, 2),
    Sketcher.Constraint("Horizontal", 9, 2, 12, 2),
    Sketcher.Constraint("Horizontal", 11, 2, 14, 2),
    Sketcher.Constraint("Horizontal", 13, 2, 16, 2),
    Sketcher.Constraint("Horizontal", 15, 2, 18, 2),
    Sketcher.Constraint("Horizontal", 17, 2, 20, 2),
    Sketcher.Constraint("Horizontal", 19, 2, 22, 2),
    Sketcher.Constraint("Horizontal", 21, 2, 24, 2),
    Sketcher.Constraint("Horizontal", 23, 2, 26, 2),
    Sketcher.Constraint("Horizontal", 25, 2, 28, 2),
    Sketcher.Constraint("Horizontal", 27, 2, 30, 2),
    Sketcher.Constraint("Equal", 3, 5),
    Sketcher.Constraint("Equal", 7, 9),
    Sketcher.Constraint("Equal", 11, 13),
    Sketcher.Constraint("Equal", 15, 17),
    Sketcher.Constraint("Equal", 19, 21),
    Sketcher.Constraint("Equal", 23, 25),
    Sketcher.Constraint("Equal", 27, 29),
    Sketcher.Constraint("DistanceX", 4, 2, 0, 2, Q("0.1 in")),
    Sketcher.Constraint("DistanceX", 0, 2, 8, 2, Q("0.1 in")),
    Sketcher.Constraint("DistanceX", 8, 2, 12, 2, Q("0.1 in")),
    Sketcher.Constraint("DistanceX", 12, 2, 16, 2, Q("0.1 in")),
    Sketcher.Constraint("DistanceX", 16, 2, 20, 2, Q("0.1 in")),
    Sketcher.Constraint("DistanceX", 20, 2, 24, 2, Q("0.1 in")),
    Sketcher.Constraint("DistanceX", 24, 2, 28, 2, Q("0.1 in")),
    Sketcher.Constraint("DistanceX", -1, 1, 1, 2, Q("0.1593001 in")),
    Sketcher.Constraint("DistanceX", 1, 1, 1, 2, 0.433382),
    Sketcher.Constraint("DistanceY", 0, 2, 0, 1, 0.491167),
    Sketcher.Constraint("DistanceY", 0, 2, -1, 1, 3.235829),
])
pad2 = doc.addObject("PartDesign::Pad", "Pad001")
body.addObject(pad2)
pad2.Profile = sketch8
pad2.Length = Q("0.075 in")

sketch9 = doc.addObject("Sketcher::SketchObject", "Sketch008")
body.addObject(sketch9)
sketch9.AttachmentSupport = (doc.XZ_Plane, [""])
sketch9.MapMode = "FlatFace"
sketch9.AttachmentOffset = App.Placement(App.Vector(0, 0, -0.34 * 25.4), App.Rotation())
add_polygon(sketch9, [(8, -8), (8, 3), (21, 3), (21, -8)])
sketch9.addConstraint([
    Sketcher.Constraint("Vertical", 0),
    Sketcher.Constraint("Horizontal", 1),
    Sketcher.Constraint("Vertical", 2),
    Sketcher.Constraint("Horizontal", 3),
    Sketcher.Constraint("DistanceY", 0, 1, 0, 2, 11.06858),
    Sketcher.Constraint("DistanceX", 1, 1, 1, 2, 13.835726),
    Sketcher.Constraint("DistanceY", 2, 2, -1, 1, 8.007218),
    Sketcher.Constraint("DistanceX", -1, 1, 0, 2, 7.556748),
])
pocket7 = doc.addObject("PartDesign::Pocket", "Pocket006")
body.addObject(pocket7)
pocket7.Profile = sketch9
pocket7.Length = Q("1 in")
pocket7.Reversed = True

sketch10 = doc.addObject("Sketcher::SketchObject", "Sketch009")
body.addObject(sketch10)
sketch10.AttachmentSupport = (doc.XZ_Plane, [""])
sketch10.MapMode = "FlatFace"
sketch10.AttachmentOffset = App.Placement(App.Vector(0, 0, -0.34 * 25.4), App.Rotation())
add_polygon(sketch10, [(5.2, -8.4), (5.2, 2.1), (8.6, 2.1), (8.6, -8.4)])
sketch10.addConstraint([
    Sketcher.Constraint("Vertical", 0),
    Sketcher.Constraint("Horizontal", 1),
    Sketcher.Constraint("Vertical", 2),
    Sketcher.Constraint("Horizontal", 3),
    Sketcher.Constraint("DistanceX", 1, 1, 1, 2, 3.388589),
    Sketcher.Constraint("DistanceY", 0, 1, 0, 2, 10.514704),
    Sketcher.Constraint("DistanceY", -1, 1, 0, 2, 2.145852),
    Sketcher.Constraint("DistanceX", -1, 1, 0, 2, 5.219948),
])
pocket8 = doc.addObject("PartDesign::Pocket", "Pocket007")
body.addObject(pocket8)
pocket8.Profile = sketch10
pocket8.Length = Q("1 in")
pocket8.Reversed = True

doc.recompute()
